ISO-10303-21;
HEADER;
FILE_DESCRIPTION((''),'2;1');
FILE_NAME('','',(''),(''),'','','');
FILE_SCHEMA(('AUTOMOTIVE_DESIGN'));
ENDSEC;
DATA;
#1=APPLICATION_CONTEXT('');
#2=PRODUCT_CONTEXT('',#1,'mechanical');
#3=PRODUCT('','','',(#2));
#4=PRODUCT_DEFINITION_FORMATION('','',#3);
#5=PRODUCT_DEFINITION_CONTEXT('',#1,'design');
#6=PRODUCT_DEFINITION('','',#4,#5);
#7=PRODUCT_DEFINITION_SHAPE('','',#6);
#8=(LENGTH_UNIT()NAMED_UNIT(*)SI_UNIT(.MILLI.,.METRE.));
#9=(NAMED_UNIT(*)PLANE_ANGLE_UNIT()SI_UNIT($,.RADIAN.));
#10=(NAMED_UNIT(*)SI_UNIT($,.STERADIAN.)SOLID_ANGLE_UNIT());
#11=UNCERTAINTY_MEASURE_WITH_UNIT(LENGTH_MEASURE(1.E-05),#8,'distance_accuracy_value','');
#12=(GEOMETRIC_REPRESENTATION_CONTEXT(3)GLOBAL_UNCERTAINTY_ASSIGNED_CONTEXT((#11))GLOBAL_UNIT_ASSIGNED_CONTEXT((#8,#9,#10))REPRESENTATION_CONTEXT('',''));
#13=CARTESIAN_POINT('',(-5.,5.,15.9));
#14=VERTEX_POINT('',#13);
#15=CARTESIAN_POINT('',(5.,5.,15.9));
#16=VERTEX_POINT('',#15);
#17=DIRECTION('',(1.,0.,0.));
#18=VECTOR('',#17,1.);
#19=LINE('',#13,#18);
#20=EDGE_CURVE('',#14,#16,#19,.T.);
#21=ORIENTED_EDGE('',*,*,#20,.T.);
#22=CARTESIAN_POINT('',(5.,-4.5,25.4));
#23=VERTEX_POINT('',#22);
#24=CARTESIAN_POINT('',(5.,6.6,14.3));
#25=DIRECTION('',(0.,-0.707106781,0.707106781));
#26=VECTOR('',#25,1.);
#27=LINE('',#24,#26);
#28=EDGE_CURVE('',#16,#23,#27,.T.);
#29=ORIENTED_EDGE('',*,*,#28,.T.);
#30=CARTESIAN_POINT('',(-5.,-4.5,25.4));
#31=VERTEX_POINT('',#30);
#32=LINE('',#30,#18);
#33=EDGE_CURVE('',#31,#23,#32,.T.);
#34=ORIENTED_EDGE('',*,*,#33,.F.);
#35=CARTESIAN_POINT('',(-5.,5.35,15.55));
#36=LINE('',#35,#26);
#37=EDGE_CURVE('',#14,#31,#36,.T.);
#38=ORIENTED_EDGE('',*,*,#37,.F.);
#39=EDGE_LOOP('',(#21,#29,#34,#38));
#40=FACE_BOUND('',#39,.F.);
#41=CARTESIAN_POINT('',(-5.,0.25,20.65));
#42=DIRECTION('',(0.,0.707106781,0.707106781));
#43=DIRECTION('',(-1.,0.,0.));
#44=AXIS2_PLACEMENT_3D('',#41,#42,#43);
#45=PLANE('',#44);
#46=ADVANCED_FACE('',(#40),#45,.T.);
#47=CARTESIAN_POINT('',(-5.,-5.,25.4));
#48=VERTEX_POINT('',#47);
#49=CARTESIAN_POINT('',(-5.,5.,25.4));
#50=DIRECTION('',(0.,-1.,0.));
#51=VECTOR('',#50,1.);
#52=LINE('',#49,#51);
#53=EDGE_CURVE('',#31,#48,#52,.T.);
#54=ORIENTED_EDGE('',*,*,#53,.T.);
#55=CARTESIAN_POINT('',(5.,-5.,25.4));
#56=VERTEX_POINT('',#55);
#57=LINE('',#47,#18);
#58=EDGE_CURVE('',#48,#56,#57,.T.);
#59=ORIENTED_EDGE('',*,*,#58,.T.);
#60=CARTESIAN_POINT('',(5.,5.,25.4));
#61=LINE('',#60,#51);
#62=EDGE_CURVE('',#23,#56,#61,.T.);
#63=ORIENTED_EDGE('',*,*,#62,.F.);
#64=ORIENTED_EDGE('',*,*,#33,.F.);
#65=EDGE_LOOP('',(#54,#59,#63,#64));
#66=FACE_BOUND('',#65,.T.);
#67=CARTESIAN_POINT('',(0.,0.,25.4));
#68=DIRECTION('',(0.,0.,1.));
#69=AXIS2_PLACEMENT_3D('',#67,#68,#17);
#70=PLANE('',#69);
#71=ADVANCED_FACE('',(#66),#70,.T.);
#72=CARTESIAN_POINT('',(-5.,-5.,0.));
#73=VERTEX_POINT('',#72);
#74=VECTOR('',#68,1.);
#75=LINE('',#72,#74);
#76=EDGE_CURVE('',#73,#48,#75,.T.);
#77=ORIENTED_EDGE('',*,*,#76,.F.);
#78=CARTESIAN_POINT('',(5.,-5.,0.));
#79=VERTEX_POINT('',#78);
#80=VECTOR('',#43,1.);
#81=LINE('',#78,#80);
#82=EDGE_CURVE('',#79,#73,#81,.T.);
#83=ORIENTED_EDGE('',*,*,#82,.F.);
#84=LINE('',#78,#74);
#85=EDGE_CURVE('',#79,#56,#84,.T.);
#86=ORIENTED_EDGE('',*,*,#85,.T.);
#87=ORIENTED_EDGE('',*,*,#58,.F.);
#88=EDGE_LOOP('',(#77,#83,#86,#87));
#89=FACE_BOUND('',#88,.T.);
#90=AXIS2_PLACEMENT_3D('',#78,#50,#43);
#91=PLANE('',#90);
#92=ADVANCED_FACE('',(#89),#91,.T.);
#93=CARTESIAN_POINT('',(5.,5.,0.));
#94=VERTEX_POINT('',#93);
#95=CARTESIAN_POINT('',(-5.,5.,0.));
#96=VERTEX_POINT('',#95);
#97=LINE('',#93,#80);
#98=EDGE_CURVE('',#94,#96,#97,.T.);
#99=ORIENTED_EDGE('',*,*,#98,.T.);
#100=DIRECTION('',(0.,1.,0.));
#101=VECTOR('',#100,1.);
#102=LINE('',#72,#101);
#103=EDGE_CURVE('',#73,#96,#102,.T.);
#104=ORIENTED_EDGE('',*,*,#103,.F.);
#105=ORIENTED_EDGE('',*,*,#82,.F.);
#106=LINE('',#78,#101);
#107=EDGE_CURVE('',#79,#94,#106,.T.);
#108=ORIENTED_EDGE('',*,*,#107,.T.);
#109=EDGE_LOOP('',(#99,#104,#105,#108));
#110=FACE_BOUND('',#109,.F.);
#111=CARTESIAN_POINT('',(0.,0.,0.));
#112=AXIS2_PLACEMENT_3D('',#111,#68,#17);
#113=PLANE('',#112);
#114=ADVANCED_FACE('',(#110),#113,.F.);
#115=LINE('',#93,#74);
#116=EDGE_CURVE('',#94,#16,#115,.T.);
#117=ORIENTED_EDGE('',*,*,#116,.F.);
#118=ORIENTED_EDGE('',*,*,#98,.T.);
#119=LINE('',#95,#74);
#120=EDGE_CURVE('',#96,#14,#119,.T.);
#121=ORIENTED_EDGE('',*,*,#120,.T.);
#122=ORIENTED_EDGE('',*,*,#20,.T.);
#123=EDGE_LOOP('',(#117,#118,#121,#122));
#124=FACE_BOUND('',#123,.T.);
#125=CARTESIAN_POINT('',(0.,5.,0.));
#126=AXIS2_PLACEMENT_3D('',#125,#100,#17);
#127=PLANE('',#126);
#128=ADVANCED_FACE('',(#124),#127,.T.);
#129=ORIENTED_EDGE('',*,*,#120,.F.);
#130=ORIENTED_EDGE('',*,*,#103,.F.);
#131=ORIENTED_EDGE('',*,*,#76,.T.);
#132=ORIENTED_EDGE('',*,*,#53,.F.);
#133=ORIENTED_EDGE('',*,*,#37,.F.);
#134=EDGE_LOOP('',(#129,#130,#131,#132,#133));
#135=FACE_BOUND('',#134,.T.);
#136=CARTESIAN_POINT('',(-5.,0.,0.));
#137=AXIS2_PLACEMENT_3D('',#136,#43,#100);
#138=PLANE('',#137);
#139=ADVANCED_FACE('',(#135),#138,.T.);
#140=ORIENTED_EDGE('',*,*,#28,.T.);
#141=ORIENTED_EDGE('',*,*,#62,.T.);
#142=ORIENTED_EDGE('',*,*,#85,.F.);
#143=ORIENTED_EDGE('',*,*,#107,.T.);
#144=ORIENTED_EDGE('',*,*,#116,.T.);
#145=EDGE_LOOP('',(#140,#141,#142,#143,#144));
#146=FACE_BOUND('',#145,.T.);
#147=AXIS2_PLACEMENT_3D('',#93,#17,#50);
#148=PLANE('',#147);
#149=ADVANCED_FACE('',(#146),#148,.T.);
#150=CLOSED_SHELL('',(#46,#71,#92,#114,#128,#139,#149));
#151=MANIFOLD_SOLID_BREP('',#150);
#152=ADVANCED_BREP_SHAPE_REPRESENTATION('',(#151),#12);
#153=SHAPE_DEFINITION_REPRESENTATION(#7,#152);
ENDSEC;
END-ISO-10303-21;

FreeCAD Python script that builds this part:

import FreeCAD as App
import Part
import Sketcher
Q = App.Units.Quantity


def edges_at(feature, points):
    """Names of the edges that pass closest to the given points."""
    edges = feature.Shape.Edges
    near = lambda p: min(range(len(edges)), key=lambda i: edges[i].distToShape(Part.Vertex(*p))[0])
    return sorted({f"Edge{near(p) + 1}" for p in points})


def add_polygon(sketch, points):
    """Adds a closed chain of lines whose ends are joined by coincident constraints."""
    first, n = sketch.GeometryCount, len(points)
    for a, b in zip(points, points[1:] + points[:1]):
        sketch.addGeometry(Part.LineSegment(App.Vector(*a, 0), App.Vector(*b, 0)), False)
    for i in range(n):
        sketch.addConstraint(Sketcher.Constraint("Coincident", first + i, 2, first + (i + 1) % n, 1))

doc = App.newDocument("Part")
body = doc.addObject("PartDesign::Body", "Body")

# Sketch on XY plane
sketch1 = body.newObject("Sketcher::SketchObject", "Sketch")
sketch1.AttachmentSupport = (doc.getObject("XY_Plane"), [""])
sketch1.MapMode = "FlatFace"
add_polygon(sketch1, [(5, 5), (-5, 5), (-5, -5), (5, -5)])  # lines 0-3
sketch1.addConstraint(Sketcher.Constraint("Horizontal", 0))
sketch1.addConstraint(Sketcher.Constraint("Vertical", 1))
sketch1.addConstraint(Sketcher.Constraint("Horizontal", 2))
sketch1.addConstraint(Sketcher.Constraint("Vertical", 3))
sketch1.addConstraint(Sketcher.Constraint("Symmetric", 0, 2, 2, 2, -1, 1))
sketch1.addConstraint(Sketcher.Constraint("Equal", 2, 1))
sketch1.addConstraint(Sketcher.Constraint("DistanceX", 0, 2, 0, 1, Q("10 mm")))
pad1 = body.newObject("PartDesign::Pad", "Pad")
pad1.Profile = sketch1
pad1.Length = 25.4
doc.recompute()

chamfer = body.newObject("PartDesign::Chamfer", "Chamfer")
chamfer.Base = (pad1, edges_at(pad1, [(0, 5, 25.4)]))
chamfer.Size = 9.5

doc.recompute()
